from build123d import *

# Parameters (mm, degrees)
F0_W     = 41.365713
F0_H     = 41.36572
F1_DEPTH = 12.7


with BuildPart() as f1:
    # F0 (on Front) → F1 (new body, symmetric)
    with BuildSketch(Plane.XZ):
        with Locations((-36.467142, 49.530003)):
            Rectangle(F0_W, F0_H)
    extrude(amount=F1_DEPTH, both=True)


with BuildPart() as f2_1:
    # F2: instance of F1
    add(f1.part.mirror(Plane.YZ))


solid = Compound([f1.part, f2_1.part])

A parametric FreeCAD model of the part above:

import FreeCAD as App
import Part
import Sketcher
from FreeCAD import Vector
Q = App.Units.Quantity

doc = App.newDocument("Part")
body = doc.addObject("PartDesign::Body", "Body")

sketch1 = doc.addObject("Sketcher::SketchObject", "Sketch")
body.addObject(sketch1)
sketch1.AttachmentSupport = (doc.XZ_Plane, [""])
sketch1.MapMode = "FlatFace"
sketch1.addGeometry(Part.LineSegment(Vector(-57, 70, 0), Vector(-57, 29, 0)), False)
sketch1.addGeometry(Part.LineSegment(Vector(-57, 29, 0), Vector(-16, 29, 0)), False)
sketch1.addGeometry(Part.LineSegment(Vector(-16, 29, 0), Vector(-16, 70, 0)), False)
sketch1.addGeometry(Part.LineSegment(Vector(-16, 70, 0), Vector(-57, 70, 0)), False)
sketch1.addConstraint(Sketcher.Constraint("Coincident", 0, 2, 1, 1))
sketch1.addConstraint(Sketcher.Constraint("Coincident", 1, 2, 2, 1))
sketch1.addConstraint(Sketcher.Constraint("Coincident", 2, 2, 3, 1))
sketch1.addConstraint(Sketcher.Constraint("Coincident", 3, 2, 0, 1))
sketch1.addConstraint(Sketcher.Constraint("Vertical", 0))
sketch1.addConstraint(Sketcher.Constraint("Horizontal", 1))
sketch1.addConstraint(Sketcher.Constraint("Vertical", 2))
sketch1.addConstraint(Sketcher.Constraint("Horizontal", 3))
sketch1.addConstraint(Sketcher.Constraint("DistanceX", 0, 2, -1, 1, Q("2.2499999 in")))
sketch1.addConstraint(Sketcher.Constraint("DistanceY", 0, 2, 0, 1, Q("41.36572 mm")))
sketch1.addConstraint(Sketcher.Constraint("DistanceX", 1, 1, 1, 2, Q("41.365713 mm")))
sketch1.addConstraint(Sketcher.Constraint("DistanceY", -1, 1, 0, 2, Q("28.847143 mm")))
pad1 = doc.addObject("PartDesign::Pad", "Pad")
body.addObject(pad1)
pad1.Profile = sketch1
pad1.Length = Q("1 in")
pad1.Midplane = True
body2 = doc.addObject("PartDesign::Body", "Body001")
doc.recompute()

mirroring = doc.addObject("Part::Mirroring", "Mirroring")
mirroring.Source = body
mirroring.Base = Vector(0, 0, 0)
mirroring.Normal = Vector(1, 0, 0)
body2.BaseFeature = mirroring
doc.recompute()
mirroring.Visibility = False

doc.recompute()
